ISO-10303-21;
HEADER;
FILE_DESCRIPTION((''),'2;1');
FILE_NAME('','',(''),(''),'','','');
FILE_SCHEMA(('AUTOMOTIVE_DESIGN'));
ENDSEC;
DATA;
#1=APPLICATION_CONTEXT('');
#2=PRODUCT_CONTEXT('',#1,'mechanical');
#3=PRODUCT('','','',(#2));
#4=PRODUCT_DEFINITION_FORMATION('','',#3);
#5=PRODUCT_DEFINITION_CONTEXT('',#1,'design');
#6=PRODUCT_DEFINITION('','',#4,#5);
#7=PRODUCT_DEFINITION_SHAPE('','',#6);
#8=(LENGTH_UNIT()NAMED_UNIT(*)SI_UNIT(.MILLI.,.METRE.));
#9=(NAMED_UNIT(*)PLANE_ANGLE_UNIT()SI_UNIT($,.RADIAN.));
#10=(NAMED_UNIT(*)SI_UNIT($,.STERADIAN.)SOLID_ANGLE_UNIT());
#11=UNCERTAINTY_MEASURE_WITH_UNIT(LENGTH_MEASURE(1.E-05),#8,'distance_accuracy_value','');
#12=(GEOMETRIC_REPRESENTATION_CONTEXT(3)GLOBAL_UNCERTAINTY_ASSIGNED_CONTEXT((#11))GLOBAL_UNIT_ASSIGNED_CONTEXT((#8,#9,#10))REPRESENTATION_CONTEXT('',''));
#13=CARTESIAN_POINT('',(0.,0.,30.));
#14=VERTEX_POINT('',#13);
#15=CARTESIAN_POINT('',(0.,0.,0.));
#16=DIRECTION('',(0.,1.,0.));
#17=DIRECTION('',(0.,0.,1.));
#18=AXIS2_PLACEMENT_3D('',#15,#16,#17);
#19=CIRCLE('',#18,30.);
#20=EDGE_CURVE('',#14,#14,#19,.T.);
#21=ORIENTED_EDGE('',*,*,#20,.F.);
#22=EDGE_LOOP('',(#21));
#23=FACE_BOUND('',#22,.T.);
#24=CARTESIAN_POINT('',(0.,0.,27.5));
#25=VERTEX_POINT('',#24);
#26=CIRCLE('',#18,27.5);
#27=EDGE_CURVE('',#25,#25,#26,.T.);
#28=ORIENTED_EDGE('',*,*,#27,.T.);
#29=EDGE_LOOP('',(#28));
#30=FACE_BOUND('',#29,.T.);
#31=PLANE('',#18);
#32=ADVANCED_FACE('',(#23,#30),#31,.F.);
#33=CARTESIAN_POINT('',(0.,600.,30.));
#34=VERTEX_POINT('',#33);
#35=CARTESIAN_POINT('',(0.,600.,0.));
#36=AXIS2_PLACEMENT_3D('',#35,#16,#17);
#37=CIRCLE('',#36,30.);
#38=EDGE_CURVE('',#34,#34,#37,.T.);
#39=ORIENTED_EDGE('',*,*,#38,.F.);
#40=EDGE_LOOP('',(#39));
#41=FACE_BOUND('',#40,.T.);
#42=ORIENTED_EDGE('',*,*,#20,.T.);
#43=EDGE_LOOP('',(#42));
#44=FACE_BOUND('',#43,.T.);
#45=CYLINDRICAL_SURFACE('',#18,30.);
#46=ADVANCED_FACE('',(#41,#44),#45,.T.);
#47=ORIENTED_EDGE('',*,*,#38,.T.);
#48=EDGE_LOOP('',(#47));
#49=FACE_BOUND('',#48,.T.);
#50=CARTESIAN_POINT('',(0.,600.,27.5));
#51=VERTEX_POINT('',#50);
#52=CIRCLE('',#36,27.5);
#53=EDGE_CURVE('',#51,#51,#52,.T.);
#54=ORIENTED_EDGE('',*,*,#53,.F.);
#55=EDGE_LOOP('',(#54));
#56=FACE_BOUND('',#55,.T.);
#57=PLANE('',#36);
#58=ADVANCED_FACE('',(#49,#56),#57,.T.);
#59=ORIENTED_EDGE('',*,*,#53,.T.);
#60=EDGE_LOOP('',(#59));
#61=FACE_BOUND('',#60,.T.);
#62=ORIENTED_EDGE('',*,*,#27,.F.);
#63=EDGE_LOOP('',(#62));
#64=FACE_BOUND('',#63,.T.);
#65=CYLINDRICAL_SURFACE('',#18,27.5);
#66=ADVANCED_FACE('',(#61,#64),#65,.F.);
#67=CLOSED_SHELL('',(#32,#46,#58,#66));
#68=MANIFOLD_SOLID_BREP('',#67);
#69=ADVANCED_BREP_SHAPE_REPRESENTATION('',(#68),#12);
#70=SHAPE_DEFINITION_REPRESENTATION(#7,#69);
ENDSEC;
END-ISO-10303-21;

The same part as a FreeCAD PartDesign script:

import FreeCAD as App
import Part
import Sketcher
from FreeCAD import Vector
Q = App.Units.Quantity


def faces_at(feature, points):
    """Names of the faces that lie closest to the given points."""
    faces = feature.Shape.Faces
    near = lambda p: min(range(len(faces)), key=lambda i: faces[i].distToShape(Part.Vertex(*p))[0])
    return sorted({f"Face{near(p) + 1}" for p in points})

doc = App.newDocument("Part")
body = doc.addObject("PartDesign::Body", "Body")

sketch1 = doc.addObject("Sketcher::SketchObject", "Sketch")
body.addObject(sketch1)
sketch1.AttachmentSupport = (doc.XZ_Plane, [""])
sketch1.MapMode = "FlatFace"
sketch1.addGeometry(Part.Circle(Vector(0, 0, 0), Vector(0, 0, 1), 30), False)
sketch1.addConstraint(Sketcher.Constraint("Coincident", 0, 3, -1, 1))
sketch1.addConstraint(Sketcher.Constraint("Diameter", 0, Q("60 mm")))

sketch2 = doc.addObject("Sketcher::SketchObject", "Sketch001")
body.addObject(sketch2)
sketch2.AttachmentSupport = (doc.XY_Plane, [""])
sketch2.MapMode = "FlatFace"
sketch2.addGeometry(Part.LineSegment(Vector(0, 0, 0), Vector(0, 600, 0)), False)
sketch2.addConstraint(Sketcher.Constraint("Vertical", 0))
sketch2.addConstraint(Sketcher.Constraint("Coincident", 0, 1, -1, 1))
sketch2.addConstraint(Sketcher.Constraint("DistanceY", 0, 1, 0, 2, Q("600 mm")))
doc.recompute()

additivepipe = doc.addObject("PartDesign::AdditivePipe", "AdditivePipe")
body.addObject(additivepipe)
additivepipe.Profile = sketch1
additivepipe.Spine = (sketch2, ["Edge1"])
doc.recompute()

thickness = doc.addObject("PartDesign::Thickness", "Thickness")
body.addObject(thickness)
thickness.Base = (additivepipe, faces_at(additivepipe, [(0, 600, 0), (0, 0, 0)]))
thickness.Value = 2.5
thickness.Reversed = True
thickness.Join = "Intersection"

doc.recompute()
